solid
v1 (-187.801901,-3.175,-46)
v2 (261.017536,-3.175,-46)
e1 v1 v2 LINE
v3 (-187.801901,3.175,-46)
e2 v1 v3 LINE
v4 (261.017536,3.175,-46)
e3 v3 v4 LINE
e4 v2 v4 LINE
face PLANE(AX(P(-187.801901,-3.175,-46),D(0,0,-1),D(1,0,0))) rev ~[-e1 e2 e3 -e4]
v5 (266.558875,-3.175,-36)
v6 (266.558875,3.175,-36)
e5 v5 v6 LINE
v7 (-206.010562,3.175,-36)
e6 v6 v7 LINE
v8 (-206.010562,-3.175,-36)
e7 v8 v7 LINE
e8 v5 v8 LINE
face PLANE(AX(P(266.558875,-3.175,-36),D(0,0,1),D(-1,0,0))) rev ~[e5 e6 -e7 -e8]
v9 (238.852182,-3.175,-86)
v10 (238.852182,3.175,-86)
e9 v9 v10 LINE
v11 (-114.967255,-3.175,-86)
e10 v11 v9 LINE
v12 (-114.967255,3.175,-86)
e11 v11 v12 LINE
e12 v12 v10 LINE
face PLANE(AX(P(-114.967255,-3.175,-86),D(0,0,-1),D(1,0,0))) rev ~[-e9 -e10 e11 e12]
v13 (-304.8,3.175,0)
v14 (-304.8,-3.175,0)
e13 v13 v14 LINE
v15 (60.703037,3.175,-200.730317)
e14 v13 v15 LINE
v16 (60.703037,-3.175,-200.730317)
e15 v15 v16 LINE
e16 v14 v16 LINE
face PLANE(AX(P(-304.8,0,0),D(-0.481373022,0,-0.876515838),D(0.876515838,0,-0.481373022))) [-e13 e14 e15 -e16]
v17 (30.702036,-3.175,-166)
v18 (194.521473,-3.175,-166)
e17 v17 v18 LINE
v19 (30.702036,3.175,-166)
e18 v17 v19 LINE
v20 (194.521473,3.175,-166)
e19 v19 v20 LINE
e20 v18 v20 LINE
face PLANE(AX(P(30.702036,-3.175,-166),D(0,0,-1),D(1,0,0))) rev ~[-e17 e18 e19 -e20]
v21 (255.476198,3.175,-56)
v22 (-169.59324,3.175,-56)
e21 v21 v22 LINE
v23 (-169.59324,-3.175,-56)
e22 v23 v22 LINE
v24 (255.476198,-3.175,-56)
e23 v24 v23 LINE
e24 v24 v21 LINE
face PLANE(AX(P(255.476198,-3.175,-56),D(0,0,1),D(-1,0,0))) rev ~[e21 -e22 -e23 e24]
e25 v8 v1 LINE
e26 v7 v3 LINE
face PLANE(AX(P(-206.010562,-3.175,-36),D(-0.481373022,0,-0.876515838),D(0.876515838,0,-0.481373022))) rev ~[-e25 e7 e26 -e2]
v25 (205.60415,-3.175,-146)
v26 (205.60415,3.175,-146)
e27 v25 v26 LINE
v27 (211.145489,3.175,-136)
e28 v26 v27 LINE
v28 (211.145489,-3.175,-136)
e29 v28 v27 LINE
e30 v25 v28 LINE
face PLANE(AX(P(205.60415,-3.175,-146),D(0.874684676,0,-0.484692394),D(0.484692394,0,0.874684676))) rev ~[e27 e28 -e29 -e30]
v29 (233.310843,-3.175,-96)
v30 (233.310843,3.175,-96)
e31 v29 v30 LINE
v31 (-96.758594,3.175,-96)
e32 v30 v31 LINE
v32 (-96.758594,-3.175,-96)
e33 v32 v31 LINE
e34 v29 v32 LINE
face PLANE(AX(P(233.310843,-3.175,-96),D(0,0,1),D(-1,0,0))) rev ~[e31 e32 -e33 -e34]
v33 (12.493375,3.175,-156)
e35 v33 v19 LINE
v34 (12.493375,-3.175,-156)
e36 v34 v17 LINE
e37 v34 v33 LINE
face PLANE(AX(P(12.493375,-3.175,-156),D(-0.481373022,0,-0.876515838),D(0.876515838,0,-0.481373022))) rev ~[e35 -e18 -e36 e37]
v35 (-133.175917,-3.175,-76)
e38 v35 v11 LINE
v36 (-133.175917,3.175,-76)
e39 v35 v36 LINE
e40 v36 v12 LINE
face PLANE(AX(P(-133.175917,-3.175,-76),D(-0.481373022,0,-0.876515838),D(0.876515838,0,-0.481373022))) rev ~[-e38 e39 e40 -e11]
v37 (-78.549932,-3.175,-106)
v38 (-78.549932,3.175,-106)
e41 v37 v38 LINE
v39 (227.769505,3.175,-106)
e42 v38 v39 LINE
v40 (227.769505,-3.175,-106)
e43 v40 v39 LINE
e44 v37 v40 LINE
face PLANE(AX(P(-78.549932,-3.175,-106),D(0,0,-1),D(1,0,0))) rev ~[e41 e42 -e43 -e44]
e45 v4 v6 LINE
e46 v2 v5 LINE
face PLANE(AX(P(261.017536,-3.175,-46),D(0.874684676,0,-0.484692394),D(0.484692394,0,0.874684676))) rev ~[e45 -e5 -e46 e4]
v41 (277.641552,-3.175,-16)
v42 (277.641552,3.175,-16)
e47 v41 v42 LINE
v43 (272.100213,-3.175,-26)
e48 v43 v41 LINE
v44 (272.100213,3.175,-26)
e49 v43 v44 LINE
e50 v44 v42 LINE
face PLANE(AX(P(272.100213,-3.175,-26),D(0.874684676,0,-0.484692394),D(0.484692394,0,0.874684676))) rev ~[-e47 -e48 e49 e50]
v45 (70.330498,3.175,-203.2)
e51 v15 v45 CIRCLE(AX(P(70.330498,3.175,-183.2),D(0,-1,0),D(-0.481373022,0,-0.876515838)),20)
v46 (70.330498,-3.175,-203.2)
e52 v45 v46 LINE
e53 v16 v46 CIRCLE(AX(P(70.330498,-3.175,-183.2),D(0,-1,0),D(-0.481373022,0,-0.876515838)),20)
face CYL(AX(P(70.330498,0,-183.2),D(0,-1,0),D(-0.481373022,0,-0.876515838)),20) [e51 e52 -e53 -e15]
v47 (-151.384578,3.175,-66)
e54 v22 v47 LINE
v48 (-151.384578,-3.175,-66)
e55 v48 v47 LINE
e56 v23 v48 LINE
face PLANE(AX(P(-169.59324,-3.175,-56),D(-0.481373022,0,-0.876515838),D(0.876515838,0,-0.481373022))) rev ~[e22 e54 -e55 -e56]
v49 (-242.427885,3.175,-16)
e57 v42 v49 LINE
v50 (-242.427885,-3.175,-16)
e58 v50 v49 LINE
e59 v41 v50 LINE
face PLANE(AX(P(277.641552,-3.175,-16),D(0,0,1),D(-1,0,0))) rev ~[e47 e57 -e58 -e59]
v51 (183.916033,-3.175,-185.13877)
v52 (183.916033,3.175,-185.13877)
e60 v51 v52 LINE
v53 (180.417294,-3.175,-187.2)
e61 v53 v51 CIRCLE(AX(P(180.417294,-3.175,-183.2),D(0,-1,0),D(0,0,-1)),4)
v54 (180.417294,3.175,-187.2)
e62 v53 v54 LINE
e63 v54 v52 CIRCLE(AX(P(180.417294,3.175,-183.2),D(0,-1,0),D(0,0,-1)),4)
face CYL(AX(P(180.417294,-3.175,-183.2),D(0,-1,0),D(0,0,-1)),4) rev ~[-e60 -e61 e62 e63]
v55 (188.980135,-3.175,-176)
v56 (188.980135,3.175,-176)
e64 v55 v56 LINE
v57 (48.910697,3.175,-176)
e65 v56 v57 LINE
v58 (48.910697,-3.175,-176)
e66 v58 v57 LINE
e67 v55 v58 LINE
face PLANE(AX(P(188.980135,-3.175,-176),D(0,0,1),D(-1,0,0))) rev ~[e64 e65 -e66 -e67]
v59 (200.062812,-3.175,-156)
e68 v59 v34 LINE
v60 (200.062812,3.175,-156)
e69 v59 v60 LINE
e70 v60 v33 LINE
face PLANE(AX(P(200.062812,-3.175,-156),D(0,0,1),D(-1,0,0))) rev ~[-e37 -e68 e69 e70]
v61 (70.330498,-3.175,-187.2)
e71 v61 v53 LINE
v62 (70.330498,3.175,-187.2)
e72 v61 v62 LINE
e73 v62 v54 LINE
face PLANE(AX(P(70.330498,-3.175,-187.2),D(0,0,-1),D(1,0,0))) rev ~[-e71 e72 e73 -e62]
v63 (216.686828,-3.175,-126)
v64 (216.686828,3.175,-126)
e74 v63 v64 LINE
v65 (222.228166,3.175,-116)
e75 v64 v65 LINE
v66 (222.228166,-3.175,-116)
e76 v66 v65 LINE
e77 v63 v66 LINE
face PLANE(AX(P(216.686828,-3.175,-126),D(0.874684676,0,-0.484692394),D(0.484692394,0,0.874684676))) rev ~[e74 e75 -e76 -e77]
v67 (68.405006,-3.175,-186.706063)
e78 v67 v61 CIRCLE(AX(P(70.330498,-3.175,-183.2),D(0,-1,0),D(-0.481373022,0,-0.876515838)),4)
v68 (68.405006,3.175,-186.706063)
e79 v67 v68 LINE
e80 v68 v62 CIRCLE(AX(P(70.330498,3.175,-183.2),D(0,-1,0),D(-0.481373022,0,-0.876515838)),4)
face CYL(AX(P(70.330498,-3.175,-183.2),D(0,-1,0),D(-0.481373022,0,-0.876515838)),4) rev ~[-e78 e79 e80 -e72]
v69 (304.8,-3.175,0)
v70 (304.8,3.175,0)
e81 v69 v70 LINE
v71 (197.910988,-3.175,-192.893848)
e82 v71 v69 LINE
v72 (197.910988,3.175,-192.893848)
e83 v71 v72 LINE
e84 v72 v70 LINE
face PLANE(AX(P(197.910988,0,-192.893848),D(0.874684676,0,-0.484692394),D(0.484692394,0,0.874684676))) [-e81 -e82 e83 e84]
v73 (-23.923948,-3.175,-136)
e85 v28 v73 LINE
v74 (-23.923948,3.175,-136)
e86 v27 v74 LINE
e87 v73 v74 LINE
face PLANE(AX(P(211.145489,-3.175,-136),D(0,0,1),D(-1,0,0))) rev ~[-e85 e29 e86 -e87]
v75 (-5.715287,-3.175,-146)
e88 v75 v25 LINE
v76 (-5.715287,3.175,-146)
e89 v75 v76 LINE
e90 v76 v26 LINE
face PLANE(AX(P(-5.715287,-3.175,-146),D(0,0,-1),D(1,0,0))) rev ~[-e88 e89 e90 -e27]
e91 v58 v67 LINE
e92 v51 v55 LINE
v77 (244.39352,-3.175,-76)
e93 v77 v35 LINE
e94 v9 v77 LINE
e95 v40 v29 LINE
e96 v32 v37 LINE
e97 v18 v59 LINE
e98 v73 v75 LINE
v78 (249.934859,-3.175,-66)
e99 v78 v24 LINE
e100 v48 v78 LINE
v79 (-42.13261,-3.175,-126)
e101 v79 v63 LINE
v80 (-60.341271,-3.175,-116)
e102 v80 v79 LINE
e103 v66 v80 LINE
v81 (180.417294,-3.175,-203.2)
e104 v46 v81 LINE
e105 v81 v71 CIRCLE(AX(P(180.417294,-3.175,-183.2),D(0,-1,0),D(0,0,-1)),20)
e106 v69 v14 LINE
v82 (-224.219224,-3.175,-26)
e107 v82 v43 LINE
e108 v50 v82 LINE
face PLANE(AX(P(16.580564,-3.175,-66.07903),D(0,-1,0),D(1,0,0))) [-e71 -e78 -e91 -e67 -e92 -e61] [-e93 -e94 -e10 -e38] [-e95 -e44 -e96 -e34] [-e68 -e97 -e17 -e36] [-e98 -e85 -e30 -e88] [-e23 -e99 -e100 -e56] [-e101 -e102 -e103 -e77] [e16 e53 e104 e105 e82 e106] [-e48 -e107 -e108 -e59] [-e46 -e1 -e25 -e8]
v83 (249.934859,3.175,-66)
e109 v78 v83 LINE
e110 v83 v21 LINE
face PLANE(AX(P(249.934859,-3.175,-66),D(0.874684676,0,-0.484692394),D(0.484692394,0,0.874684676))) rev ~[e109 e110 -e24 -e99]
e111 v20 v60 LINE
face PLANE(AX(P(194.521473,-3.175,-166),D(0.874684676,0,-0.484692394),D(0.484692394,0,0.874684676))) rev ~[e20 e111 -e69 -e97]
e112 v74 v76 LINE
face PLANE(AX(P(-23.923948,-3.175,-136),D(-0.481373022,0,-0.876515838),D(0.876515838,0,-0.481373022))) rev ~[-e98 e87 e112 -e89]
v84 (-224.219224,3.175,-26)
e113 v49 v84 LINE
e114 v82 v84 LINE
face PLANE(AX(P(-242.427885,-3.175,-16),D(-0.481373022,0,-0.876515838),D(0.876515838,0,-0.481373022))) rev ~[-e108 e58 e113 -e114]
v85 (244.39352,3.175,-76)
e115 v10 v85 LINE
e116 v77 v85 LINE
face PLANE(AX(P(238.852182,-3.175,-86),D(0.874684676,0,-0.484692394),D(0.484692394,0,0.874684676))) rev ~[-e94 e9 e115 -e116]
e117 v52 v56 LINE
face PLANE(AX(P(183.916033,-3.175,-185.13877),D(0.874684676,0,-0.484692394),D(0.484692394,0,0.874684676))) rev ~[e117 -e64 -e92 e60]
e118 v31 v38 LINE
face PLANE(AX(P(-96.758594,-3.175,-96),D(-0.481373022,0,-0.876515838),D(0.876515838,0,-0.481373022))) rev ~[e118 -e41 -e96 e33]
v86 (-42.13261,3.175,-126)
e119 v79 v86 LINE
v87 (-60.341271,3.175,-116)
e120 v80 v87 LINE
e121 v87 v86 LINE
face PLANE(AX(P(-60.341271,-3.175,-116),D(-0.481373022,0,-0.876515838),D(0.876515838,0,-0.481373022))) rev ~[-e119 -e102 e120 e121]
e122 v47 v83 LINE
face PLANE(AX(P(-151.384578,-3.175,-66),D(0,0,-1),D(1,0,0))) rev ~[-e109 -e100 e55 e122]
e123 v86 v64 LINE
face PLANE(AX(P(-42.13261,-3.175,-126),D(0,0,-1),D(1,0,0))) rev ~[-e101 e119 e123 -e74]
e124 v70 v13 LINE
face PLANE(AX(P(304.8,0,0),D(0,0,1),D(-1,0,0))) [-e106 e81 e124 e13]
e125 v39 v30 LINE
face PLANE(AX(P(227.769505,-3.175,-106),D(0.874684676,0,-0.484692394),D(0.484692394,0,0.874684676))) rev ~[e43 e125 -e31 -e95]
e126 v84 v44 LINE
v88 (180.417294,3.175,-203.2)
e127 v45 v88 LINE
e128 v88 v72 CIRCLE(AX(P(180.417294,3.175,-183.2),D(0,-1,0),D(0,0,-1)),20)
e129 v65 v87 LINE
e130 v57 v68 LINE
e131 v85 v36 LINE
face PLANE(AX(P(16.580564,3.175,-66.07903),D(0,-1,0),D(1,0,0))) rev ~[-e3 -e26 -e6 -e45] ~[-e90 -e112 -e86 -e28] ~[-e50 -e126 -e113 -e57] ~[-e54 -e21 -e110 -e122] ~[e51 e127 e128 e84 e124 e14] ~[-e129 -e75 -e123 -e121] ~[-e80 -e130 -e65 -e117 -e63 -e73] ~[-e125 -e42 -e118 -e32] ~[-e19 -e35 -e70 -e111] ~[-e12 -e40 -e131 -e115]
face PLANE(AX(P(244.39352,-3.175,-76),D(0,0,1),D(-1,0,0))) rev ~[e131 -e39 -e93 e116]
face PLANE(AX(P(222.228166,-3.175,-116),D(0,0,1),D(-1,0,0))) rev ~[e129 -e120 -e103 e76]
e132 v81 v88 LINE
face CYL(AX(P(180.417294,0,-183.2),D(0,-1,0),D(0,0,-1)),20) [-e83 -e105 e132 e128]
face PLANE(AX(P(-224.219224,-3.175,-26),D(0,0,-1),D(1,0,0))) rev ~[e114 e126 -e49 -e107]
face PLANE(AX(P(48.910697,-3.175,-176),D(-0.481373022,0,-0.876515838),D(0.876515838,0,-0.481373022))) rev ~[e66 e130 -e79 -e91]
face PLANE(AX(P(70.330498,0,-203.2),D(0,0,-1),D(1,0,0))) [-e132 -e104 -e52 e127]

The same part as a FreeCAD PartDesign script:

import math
import FreeCAD as App
import Part
import Sketcher
from FreeCAD import Vector

doc = App.newDocument("Part")
body = doc.addObject("PartDesign::Body", "Body")

sketch1 = body.newObject("Sketcher::SketchObject", "Sketch")
sketch1.AttachmentSupport = (doc.getObject("XZ_Plane"), [""])
sketch1.MapMode = "FlatFace"
sketch1.addGeometry([
    Part.LineSegment(Vector(304.8, 0, 0), Vector(-304.8, 0, 0)),
    Part.LineSegment(Vector(-304.8, 0, 0), Vector(60.703037, -200.730317, 0)),
    Part.ArcOfCircle(Part.Circle(Vector(70.330498, -183.2, 0), Vector(0, 0, 1), 20), math.radians(-118.775115), math.radians(-90)),
    Part.LineSegment(Vector(70.330498, -203.2, 0), Vector(180.417294, -203.2, 0)),
    Part.ArcOfCircle(Part.Circle(Vector(180.417294, -183.2, 0), Vector(0, 0, 1), 20), math.radians(-90), math.radians(-28.992321)),
    Part.LineSegment(Vector(197.910988, -192.893848, 0), Vector(304.8, 0, 0)),
], False)
sketch1.addConstraint([
    Sketcher.Constraint("Coincident", 0, 2, 1, 1),
    Sketcher.Constraint("Tangent", 1, 2, 2, 1),
    Sketcher.Constraint("Tangent", 2, 2, 3, 1),
    Sketcher.Constraint("Tangent", 3, 2, 4, 1),
    Sketcher.Constraint("Tangent", 4, 2, 5, 1),
    Sketcher.Constraint("Coincident", 5, 2, 0, 1),
    Sketcher.Constraint("Horizontal", 0),
    Sketcher.Constraint("Horizontal", 3),
    Sketcher.Constraint("Equal", 2, 4),
    Sketcher.Constraint("Symmetric", 0, 2, 5, 2, -1, 1),
    Sketcher.Constraint("Radius", 2, 20.0),
    Sketcher.Constraint("DistanceX", 0, 2, 0, 1, 609.6),
    Sketcher.Constraint("DistanceY", 2, 3, -1, 1, 183.2),
    Sketcher.Constraint("Distance", 1, 416.99536),
    Sketcher.Constraint("DistanceX", 3, 1, 3, 2, 110.086796),
])
pad1 = body.newObject("PartDesign::Pad", "Pad")
pad1.Profile = sketch1
pad1.Length = 6.35
pad1.Midplane = True

sketch2 = body.newObject("Sketcher::SketchObject", "Sketch001")
sketch2.AttachmentSupport = (doc.getObject("XZ_Plane"), [""])
sketch2.MapMode = "FlatFace"
sketch2.AttachmentOffset = App.Placement(Vector(0, 0, 3.175), App.Rotation())
sketch2.addGeometry([
    Part.LineSegment(Vector(277.641552, -16, 0), Vector(-242.427885, -16, 0)),
    Part.LineSegment(Vector(-242.427885, -16, 0), Vector(-224.219224, -26, 0)),
    Part.LineSegment(Vector(-224.219224, -26, 0), Vector(272.100213, -26, 0)),
    Part.LineSegment(Vector(272.100213, -26, 0), Vector(277.641552, -16, 0)),
    Part.LineSegment(Vector(48.910697, -176, 0), Vector(68.405006, -186.706063, 0)),
    Part.ArcOfCircle(Part.Circle(Vector(70.330498, -183.2, 0), Vector(0, 0, 1), 4), math.radians(-118.775115), math.radians(-90)),
    Part.LineSegment(Vector(70.330498, -187.2, 0), Vector(180.417294, -187.2, 0)),
    Part.ArcOfCircle(Part.Circle(Vector(180.417294, -183.2, 0), Vector(0, 0, 1), 4), math.radians(-90), math.radians(-28.992321)),
    Part.LineSegment(Vector(183.916033, -185.13877, 0), Vector(188.980135, -176, 0)),
    Part.LineSegment(Vector(188.980135, -176, 0), Vector(48.910697, -176, 0)),
    Part.LineSegment(Vector(266.558875, -36, 0), Vector(-206.010562, -36, 0)),
    Part.LineSegment(Vector(-206.010562, -36, 0), Vector(-187.801901, -46, 0)),
    Part.LineSegment(Vector(-187.801901, -46, 0), Vector(261.017536, -46, 0)),
    Part.LineSegment(Vector(261.017536, -46, 0), Vector(266.558875, -36, 0)),
    Part.LineSegment(Vector(255.476198, -56, 0), Vector(-169.59324, -56, 0)),
    Part.LineSegment(Vector(-169.59324, -56, 0), Vector(-151.384578, -66, 0)),
    Part.LineSegment(Vector(-151.384578, -66, 0), Vector(249.934859, -66, 0)),
    Part.LineSegment(Vector(249.934859, -66, 0), Vector(255.476198, -56, 0)),
    Part.LineSegment(Vector(244.39352, -76, 0), Vector(-133.175917, -76, 0)),
    Part.LineSegment(Vector(-133.175917, -76, 0), Vector(-114.967255, -86, 0)),
    Part.LineSegment(Vector(-114.967255, -86, 0), Vector(238.852182, -86, 0)),
    Part.LineSegment(Vector(238.852182, -86, 0), Vector(244.39352, -76, 0)),
    Part.LineSegment(Vector(233.310843, -96, 0), Vector(-96.758594, -96, 0)),
    Part.LineSegment(Vector(-96.758594, -96, 0), Vector(-78.549932, -106, 0)),
    Part.LineSegment(Vector(-78.549932, -106, 0), Vector(227.769505, -106, 0)),
    Part.LineSegment(Vector(227.769505, -106, 0), Vector(233.310843, -96, 0)),
    Part.LineSegment(Vector(222.228166, -116, 0), Vector(-60.341271, -116, 0)),
    Part.LineSegment(Vector(-60.341271, -116, 0), Vector(-42.13261, -126, 0)),
    Part.LineSegment(Vector(-42.13261, -126, 0), Vector(216.686828, -126, 0)),
    Part.LineSegment(Vector(216.686828, -126, 0), Vector(222.228166, -116, 0)),
    Part.LineSegment(Vector(211.145489, -136, 0), Vector(-23.923948, -136, 0)),
    Part.LineSegment(Vector(-23.923948, -136, 0), Vector(-5.715287, -146, 0)),
    Part.LineSegment(Vector(-5.715287, -146, 0), Vector(205.60415, -146, 0)),
    Part.LineSegment(Vector(205.60415, -146, 0), Vector(211.145489, -136, 0)),
    Part.LineSegment(Vector(200.062812, -156, 0), Vector(12.493375, -156, 0)),
    Part.LineSegment(Vector(12.493375, -156, 0), Vector(30.702036, -166, 0)),
    Part.LineSegment(Vector(30.702036, -166, 0), Vector(194.521473, -166, 0)),
    Part.LineSegment(Vector(194.521473, -166, 0), Vector(200.062812, -156, 0)),
], False)
sketch2.addConstraint([
    Sketcher.Constraint("Coincident", 0, 2, 1, 1),
    Sketcher.Constraint("Coincident", 1, 2, 2, 1),
    Sketcher.Constraint("Coincident", 2, 2, 3, 1),
    Sketcher.Constraint("Coincident", 3, 2, 0, 1),
    Sketcher.Constraint("Tangent", 4, 2, 5, 1),
    Sketcher.Constraint("Tangent", 5, 2, 6, 1),
    Sketcher.Constraint("Tangent", 6, 2, 7, 1),
    Sketcher.Constraint("Tangent", 7, 2, 8, 1),
    Sketcher.Constraint("Coincident", 8, 2, 9, 1),
    Sketcher.Constraint("Coincident", 9, 2, 4, 1),
    Sketcher.Constraint("Coincident", 10, 2, 11, 1),
    Sketcher.Constraint("Coincident", 11, 2, 12, 1),
    Sketcher.Constraint("Coincident", 12, 2, 13, 1),
    Sketcher.Constraint("Coincident", 13, 2, 10, 1),
    Sketcher.Constraint("Coincident", 14, 2, 15, 1),
    Sketcher.Constraint("Coincident", 15, 2, 16, 1),
    Sketcher.Constraint("Coincident", 16, 2, 17, 1),
    Sketcher.Constraint("Coincident", 17, 2, 14, 1),
    Sketcher.Constraint("Coincident", 18, 2, 19, 1),
    Sketcher.Constraint("Coincident", 19, 2, 20, 1),
    Sketcher.Constraint("Coincident", 20, 2, 21, 1),
    Sketcher.Constraint("Coincident", 21, 2, 18, 1),
    Sketcher.Constraint("Coincident", 22, 2, 23, 1),
    Sketcher.Constraint("Coincident", 23, 2, 24, 1),
    Sketcher.Constraint("Coincident", 24, 2, 25, 1),
    Sketcher.Constraint("Coincident", 25, 2, 22, 1),
    Sketcher.Constraint("Coincident", 26, 2, 27, 1),
    Sketcher.Constraint("Coincident", 27, 2, 28, 1),
    Sketcher.Constraint("Coincident", 28, 2, 29, 1),
    Sketcher.Constraint("Coincident", 29, 2, 26, 1),
    Sketcher.Constraint("Coincident", 30, 2, 31, 1),
    Sketcher.Constraint("Coincident", 31, 2, 32, 1),
    Sketcher.Constraint("Coincident", 32, 2, 33, 1),
    Sketcher.Constraint("Coincident", 33, 2, 30, 1),
    Sketcher.Constraint("Coincident", 34, 2, 35, 1),
    Sketcher.Constraint("Coincident", 35, 2, 36, 1),
    Sketcher.Constraint("Coincident", 36, 2, 37, 1),
    Sketcher.Constraint("Coincident", 37, 2, 34, 1),
    Sketcher.Constraint("Horizontal", 0),
    Sketcher.Constraint("Horizontal", 2),
    Sketcher.Constraint("Horizontal", 6),
    Sketcher.Constraint("Horizontal", 9),
    Sketcher.Constraint("Horizontal", 10),
    Sketcher.Constraint("Horizontal", 12),
    Sketcher.Constraint("Horizontal", 14),
    Sketcher.Constraint("Horizontal", 16),
    Sketcher.Constraint("Horizontal", 18),
    Sketcher.Constraint("Horizontal", 20),
    Sketcher.Constraint("Horizontal", 22),
    Sketcher.Constraint("Horizontal", 24),
    Sketcher.Constraint("Horizontal", 26),
    Sketcher.Constraint("Horizontal", 28),
    Sketcher.Constraint("Horizontal", 30),
    Sketcher.Constraint("Horizontal", 32),
    Sketcher.Constraint("Horizontal", 34),
    Sketcher.Constraint("Horizontal", 36),
    Sketcher.Constraint("Equal", 5, 7),
    Sketcher.Constraint("Parallel", 1, 4),
    Sketcher.Constraint("Parallel", 3, 8),
    Sketcher.Constraint("Parallel", 4, 11),
    Sketcher.Constraint("Parallel", 8, 13),
    Sketcher.Constraint("Parallel", 11, 15),
    Sketcher.Constraint("Parallel", 13, 17),
    Sketcher.Constraint("Parallel", 15, 19),
    Sketcher.Constraint("Parallel", 17, 21),
    Sketcher.Constraint("Parallel", 19, 23),
    Sketcher.Constraint("Parallel", 21, 25),
    Sketcher.Constraint("Parallel", 23, 27),
    Sketcher.Constraint("Parallel", 25, 29),
    Sketcher.Constraint("Parallel", 27, 31),
    Sketcher.Constraint("Parallel", 29, 33),
    Sketcher.Constraint("Parallel", 31, 35),
    Sketcher.Constraint("Parallel", 33, 37),
    Sketcher.Constraint("Equal", 1, 11),
    Sketcher.Constraint("Equal", 11, 15),
    Sketcher.Constraint("Equal", 15, 19),
    Sketcher.Constraint("Equal", 19, 23),
    Sketcher.Constraint("Equal", 23, 27),
    Sketcher.Constraint("Equal", 27, 31),
    Sketcher.Constraint("Equal", 31, 35),
    Sketcher.Constraint("Radius", 5, 4.0),
    Sketcher.Constraint("DistanceY", 0, 2, -1, 1, 16.0),
    Sketcher.Constraint("DistanceY", 1, 2, -1, 1, 26.0),
    Sketcher.Constraint("DistanceY", 8, 2, -1, 1, 176.0),
    Sketcher.Constraint("DistanceY", 10, 2, -1, 1, 36.0),
    Sketcher.Constraint("DistanceY", 14, 2, -1, 1, 56.0),
    Sketcher.Constraint("DistanceY", 18, 2, -1, 1, 76.0),
    Sketcher.Constraint("DistanceY", 22, 2, -1, 1, 96.0),
    Sketcher.Constraint("DistanceY", 26, 2, -1, 1, 116.0),
    Sketcher.Constraint("DistanceY", 30, 2, -1, 1, 136.0),
    Sketcher.Constraint("DistanceY", 34, 2, -1, 1, 156.0),
    Sketcher.Constraint("DistanceY", 5, 3, -1, 1, 183.2),
    Sketcher.Constraint("DistanceX", 11, 2, -1, 1, 187.801901),
    Sketcher.Constraint("DistanceX", 0, 2, 2, 2, 514.528099),
    Sketcher.Constraint("DistanceX", 7, 2, 8, 2, 5.064102),
    Sketcher.Constraint("DistanceX", 9, 2, 5, 3, 21.4198),
    Sketcher.Constraint("DistanceX", 11, 2, 9, 2, 236.712598),
    Sketcher.Constraint("DistanceX", 8, 2, 12, 2, 72.037402),
    Sketcher.Constraint("DistanceX", 6, 1, 6, 2, 110.086796),
    Sketcher.Constraint("DistanceX", 14, 2, 14, 1, 425.069437),
    Sketcher.Constraint("DistanceX", 18, 2, 18, 1, 377.569437),
    Sketcher.Constraint("DistanceX", 22, 2, 22, 1, 330.069437),
    Sketcher.Constraint("DistanceX", 26, 2, 26, 1, 282.569437),
    Sketcher.Constraint("DistanceX", 30, 2, 30, 1, 235.069437),
    Sketcher.Constraint("DistanceX", 34, 2, 34, 1, 187.569437),
    Sketcher.Constraint("DistanceX", -1, 1, 3, 2, 277.641552),
    Sketcher.Constraint("DistanceX", 14, 2, -1, 1, 169.59324),
    Sketcher.Constraint("DistanceX", -1, 1, 20, 2, 238.852182),
    Sketcher.Constraint("DistanceX", 26, 2, -1, 1, 60.341271),
    Sketcher.Constraint("DistanceX", 30, 2, -1, 1, 23.923948),
    Sketcher.Constraint("DistanceX", -1, 1, 37, 2, 200.062812),
    Sketcher.Constraint("DistanceX", 19, 2, 22, 2, 18.208661),
])
pocket1 = body.newObject("PartDesign::Pocket", "Pocket")
pocket1.Profile = sketch2
pocket1.Type = "ThroughAll"

doc.recompute()
